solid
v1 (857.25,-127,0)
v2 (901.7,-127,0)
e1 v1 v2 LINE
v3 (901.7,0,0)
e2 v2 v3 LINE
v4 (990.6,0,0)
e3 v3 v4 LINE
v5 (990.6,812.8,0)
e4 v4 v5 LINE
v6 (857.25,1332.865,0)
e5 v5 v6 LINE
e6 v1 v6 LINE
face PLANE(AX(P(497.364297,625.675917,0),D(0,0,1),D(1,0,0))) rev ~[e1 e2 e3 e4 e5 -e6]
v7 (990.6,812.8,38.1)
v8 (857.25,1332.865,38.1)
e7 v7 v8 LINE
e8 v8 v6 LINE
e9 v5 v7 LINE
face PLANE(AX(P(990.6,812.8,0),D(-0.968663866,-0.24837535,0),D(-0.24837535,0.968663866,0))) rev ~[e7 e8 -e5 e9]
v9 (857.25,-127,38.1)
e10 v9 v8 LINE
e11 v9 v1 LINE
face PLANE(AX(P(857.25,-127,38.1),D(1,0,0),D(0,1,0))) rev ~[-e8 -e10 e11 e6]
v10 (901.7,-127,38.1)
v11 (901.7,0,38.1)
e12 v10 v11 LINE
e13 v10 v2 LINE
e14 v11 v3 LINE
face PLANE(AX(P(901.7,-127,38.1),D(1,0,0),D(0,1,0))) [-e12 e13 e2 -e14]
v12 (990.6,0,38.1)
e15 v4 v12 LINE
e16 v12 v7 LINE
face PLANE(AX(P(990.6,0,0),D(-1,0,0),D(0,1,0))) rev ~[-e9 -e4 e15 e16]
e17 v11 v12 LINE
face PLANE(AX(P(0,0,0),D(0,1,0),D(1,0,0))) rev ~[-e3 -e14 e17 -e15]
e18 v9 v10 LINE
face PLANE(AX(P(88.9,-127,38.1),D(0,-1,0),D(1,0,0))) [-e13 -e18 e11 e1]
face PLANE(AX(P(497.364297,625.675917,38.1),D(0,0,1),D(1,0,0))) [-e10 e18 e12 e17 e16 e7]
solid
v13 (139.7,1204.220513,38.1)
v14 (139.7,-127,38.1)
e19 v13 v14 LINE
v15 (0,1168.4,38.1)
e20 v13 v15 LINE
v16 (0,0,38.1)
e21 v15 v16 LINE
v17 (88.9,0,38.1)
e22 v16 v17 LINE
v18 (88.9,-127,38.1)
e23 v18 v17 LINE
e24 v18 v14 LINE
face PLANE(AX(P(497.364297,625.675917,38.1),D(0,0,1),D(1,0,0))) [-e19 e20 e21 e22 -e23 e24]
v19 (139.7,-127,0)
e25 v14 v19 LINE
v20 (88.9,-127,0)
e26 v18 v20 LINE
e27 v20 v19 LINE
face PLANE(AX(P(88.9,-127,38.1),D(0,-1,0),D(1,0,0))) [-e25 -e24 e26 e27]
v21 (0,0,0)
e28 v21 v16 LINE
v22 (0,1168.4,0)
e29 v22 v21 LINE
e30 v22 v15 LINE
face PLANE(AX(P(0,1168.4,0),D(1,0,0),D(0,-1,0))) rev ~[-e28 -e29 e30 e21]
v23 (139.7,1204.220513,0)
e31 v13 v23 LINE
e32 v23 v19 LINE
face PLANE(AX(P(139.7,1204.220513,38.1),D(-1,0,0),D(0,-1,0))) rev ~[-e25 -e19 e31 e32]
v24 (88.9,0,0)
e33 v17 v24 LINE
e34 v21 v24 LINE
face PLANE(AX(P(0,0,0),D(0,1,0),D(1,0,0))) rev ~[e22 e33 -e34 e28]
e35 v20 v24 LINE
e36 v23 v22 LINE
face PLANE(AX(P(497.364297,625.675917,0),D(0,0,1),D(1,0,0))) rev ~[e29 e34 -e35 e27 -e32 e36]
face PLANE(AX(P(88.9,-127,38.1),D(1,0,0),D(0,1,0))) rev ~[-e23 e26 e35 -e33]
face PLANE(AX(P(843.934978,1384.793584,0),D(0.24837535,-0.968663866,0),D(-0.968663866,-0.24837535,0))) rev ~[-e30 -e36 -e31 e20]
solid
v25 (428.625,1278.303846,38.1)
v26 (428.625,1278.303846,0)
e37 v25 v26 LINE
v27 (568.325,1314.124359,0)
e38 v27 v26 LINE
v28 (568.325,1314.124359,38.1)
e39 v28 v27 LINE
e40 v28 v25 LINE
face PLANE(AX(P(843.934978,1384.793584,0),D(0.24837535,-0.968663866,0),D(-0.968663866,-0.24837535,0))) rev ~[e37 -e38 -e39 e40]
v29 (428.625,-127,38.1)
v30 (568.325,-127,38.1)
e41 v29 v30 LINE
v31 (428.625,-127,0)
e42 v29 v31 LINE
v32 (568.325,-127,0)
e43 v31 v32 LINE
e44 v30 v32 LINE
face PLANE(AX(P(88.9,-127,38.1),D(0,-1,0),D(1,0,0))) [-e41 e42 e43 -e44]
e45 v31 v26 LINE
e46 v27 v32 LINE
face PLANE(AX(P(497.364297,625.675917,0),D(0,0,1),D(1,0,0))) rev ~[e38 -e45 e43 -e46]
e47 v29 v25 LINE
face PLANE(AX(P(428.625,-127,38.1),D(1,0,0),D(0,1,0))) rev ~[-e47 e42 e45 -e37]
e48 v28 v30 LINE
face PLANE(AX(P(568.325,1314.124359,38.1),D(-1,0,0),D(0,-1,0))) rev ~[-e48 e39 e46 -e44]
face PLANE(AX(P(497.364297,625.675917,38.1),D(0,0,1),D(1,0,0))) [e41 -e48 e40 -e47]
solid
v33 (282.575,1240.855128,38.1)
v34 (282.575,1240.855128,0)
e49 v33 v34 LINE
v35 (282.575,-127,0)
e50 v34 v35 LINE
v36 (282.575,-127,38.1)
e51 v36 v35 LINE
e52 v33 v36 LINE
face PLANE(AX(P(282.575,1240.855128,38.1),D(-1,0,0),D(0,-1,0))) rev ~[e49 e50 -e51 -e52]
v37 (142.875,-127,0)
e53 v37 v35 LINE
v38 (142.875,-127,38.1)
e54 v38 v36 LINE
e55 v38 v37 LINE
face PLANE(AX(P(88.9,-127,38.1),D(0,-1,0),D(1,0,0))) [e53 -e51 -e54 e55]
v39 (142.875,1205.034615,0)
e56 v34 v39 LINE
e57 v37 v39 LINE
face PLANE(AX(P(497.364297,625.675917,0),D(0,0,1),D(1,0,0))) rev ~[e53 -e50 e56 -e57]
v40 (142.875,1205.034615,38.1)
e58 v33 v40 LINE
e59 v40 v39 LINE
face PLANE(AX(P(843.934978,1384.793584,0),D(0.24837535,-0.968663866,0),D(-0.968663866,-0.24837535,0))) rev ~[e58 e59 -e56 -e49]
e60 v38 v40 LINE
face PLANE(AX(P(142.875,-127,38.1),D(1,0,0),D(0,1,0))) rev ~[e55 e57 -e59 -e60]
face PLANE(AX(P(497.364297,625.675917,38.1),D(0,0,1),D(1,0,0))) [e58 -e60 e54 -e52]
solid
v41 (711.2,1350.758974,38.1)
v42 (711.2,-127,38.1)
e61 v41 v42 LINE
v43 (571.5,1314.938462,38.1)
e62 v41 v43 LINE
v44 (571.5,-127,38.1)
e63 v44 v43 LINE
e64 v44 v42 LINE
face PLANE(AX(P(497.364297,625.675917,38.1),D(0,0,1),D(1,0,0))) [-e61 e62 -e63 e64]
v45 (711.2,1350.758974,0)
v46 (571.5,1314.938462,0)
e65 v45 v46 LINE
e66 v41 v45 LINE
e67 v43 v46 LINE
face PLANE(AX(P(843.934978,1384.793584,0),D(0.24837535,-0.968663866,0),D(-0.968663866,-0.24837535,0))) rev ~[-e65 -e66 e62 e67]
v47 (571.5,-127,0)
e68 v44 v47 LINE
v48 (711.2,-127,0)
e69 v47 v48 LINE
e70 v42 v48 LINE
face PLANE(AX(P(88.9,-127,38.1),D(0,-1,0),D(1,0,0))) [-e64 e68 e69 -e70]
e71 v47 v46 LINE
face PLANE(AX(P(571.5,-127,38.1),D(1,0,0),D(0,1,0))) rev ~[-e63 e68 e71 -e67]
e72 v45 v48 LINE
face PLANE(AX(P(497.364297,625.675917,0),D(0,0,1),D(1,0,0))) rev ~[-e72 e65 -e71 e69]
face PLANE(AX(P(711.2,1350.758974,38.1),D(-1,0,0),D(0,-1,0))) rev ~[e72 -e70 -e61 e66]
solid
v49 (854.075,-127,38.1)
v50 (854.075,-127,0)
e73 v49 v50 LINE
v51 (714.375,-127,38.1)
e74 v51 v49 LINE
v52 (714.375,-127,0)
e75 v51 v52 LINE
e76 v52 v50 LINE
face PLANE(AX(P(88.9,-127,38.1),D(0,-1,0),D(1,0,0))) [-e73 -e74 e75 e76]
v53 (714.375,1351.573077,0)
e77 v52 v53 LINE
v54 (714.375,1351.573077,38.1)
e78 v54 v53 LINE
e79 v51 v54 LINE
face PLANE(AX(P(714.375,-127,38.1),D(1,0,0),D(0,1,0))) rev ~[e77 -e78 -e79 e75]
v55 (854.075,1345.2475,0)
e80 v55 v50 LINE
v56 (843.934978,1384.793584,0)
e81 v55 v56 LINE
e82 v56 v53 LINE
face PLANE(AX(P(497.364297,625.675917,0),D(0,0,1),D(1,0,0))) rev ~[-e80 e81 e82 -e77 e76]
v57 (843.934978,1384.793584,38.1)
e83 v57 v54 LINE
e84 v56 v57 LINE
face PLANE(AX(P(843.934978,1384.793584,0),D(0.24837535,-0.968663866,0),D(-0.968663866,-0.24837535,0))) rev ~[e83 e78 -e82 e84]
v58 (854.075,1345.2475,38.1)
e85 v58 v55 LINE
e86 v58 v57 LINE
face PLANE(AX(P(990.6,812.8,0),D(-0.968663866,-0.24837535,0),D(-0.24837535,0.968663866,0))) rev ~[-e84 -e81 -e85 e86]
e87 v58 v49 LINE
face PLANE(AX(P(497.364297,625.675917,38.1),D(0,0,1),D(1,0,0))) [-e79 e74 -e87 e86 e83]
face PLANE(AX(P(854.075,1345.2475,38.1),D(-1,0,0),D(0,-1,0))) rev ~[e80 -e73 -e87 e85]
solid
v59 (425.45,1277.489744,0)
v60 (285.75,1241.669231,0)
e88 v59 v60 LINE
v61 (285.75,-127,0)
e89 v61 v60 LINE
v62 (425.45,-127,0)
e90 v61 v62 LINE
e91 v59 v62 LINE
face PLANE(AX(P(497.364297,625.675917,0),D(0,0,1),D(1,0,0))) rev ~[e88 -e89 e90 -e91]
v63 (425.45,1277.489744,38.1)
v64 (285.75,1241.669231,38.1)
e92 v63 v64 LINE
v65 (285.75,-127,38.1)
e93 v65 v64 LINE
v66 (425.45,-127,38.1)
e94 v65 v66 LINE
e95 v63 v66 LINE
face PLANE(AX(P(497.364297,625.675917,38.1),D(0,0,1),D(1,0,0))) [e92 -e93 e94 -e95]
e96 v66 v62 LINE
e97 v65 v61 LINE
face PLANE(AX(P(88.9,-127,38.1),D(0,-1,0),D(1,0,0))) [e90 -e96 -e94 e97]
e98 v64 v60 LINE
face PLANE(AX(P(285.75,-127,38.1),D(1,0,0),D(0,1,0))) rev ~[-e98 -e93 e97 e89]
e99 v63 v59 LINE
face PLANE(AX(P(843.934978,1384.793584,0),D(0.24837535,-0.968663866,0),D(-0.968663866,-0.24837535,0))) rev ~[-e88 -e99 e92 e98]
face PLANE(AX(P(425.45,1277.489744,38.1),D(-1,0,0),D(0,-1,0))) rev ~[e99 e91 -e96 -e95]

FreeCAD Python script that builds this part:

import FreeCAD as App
import Part
import Sketcher
Q = App.Units.Quantity


def add_polygon(sketch, points):
    """Adds a closed chain of lines whose ends are joined by coincident constraints."""
    first, n = sketch.GeometryCount, len(points)
    for a, b in zip(points, points[1:] + points[:1]):
        sketch.addGeometry(Part.LineSegment(App.Vector(*a, 0), App.Vector(*b, 0)), False)
    for i in range(n):
        sketch.addConstraint(Sketcher.Constraint("Coincident", first + i, 2, first + (i + 1) % n, 1))

doc = App.newDocument("Part")
body = doc.addObject("PartDesign::Body", "Body")
body.AllowCompound = True

# Sketch on XY plane
sketch1 = body.newObject("Sketcher::SketchObject", "Sketch")
sketch1.AttachmentSupport = (doc.getObject("XY_Plane"), [""])
sketch1.MapMode = "FlatFace"
add_polygon(sketch1, [(0, 1168), (0, 0), (991, 0), (991, 813), (844, 1385)])  # lines 0-4
sketch1.addConstraint(Sketcher.Constraint("Vertical", 0))
sketch1.addConstraint(Sketcher.Constraint("Horizontal", 1))
sketch1.addConstraint(Sketcher.Constraint("Vertical", 2))
sketch1.addConstraint(Sketcher.Constraint("Coincident", 0, 2, -1, 1))
sketch1.addConstraint(Sketcher.Constraint("Perpendicular", 3, 4))
sketch1.addConstraint(Sketcher.Constraint("DistanceX", 1, 1, 1, 2, Q("39 in")))
sketch1.addConstraint(Sketcher.Constraint("DistanceY", 0, 2, 0, 1, Q("46 in")))
sketch1.addConstraint(Sketcher.Constraint("DistanceY", 2, 1, 2, 2, Q("32 in")))
sketch1.addConstraint(Sketcher.Constraint("Distance", 4, 871.236151))
pad1 = body.newObject("PartDesign::Pad", "Pad")
pad1.Profile = sketch1
pad1.Length = Q("1.5 in")

# Sketch on XY plane
sketch2 = body.newObject("Sketcher::SketchObject", "Sketch001")
sketch2.AttachmentSupport = (doc.getObject("XY_Plane"), [""])
sketch2.MapMode = "FlatFace"
sketch2.AttachmentOffset = App.Placement(App.Vector(0, 0, 1.5 * 25.4), App.Rotation())
add_polygon(sketch2, [(89, 0), (89, -127), (902, -127), (902, 0)])  # lines 0-3
sketch2.addConstraint(Sketcher.Constraint("Vertical", 0))
sketch2.addConstraint(Sketcher.Constraint("Horizontal", 1))
sketch2.addConstraint(Sketcher.Constraint("Vertical", 2))
sketch2.addConstraint(Sketcher.Constraint("Horizontal", 3))
sketch2.addConstraint(Sketcher.Constraint("PointOnObject", 2, 2, -1))
sketch2.addConstraint(Sketcher.Constraint("DistanceX", 1, 1, 1, 2, Q("32 in")))
sketch2.addConstraint(Sketcher.Constraint("DistanceY", 0, 2, 0, 1, Q("5 in")))
sketch2.addConstraint(Sketcher.Constraint("DistanceX", -1, 1, 0, 2, Q("3.5 in")))
pad2 = body.newObject("PartDesign::Pad", "Pad001")
pad2.Profile = sketch2
pad2.Length = Q("1.5 in")
pad2.Reversed = True

# Sketch on XY plane
sketch3 = body.newObject("Sketcher::SketchObject", "Sketch002")
sketch3.AttachmentSupport = (doc.getObject("XY_Plane"), [""])
sketch3.MapMode = "FlatFace"
sketch3.AttachmentOffset = App.Placement(App.Vector(0, 0, 1.5 * 25.4), App.Rotation())
add_polygon(sketch3, [(139.7, 1204.2), (139.7, -127), (142.9, -127), (142.9, 1205)])  # lines 0-3
add_polygon(sketch3, [(282.6, 1240.9), (282.6, -127), (285.8, -127), (285.8, 1241.7)])  # lines 4-7
add_polygon(sketch3, [(425.4, 1277.5), (425.4, -127), (428.6, -127), (428.6, 1278.3)])  # lines 8-11
add_polygon(sketch3, [(568.3, 1314.1), (568.3, -127), (571.5, -127), (571.5, 1314.9)])  # lines 12-15
add_polygon(sketch3, [(711.2, 1350.8), (711.2, -127), (714.4, -127), (714.4, 1351.6)])  # lines 16-19
add_polygon(sketch3, [(854.1, 1345.2), (854.1, -127), (857.2, -127), (857.2, 1332.9)])  # lines 20-23
sketch3.addConstraint(Sketcher.Constraint("Vertical", 0))
sketch3.addConstraint(Sketcher.Constraint("Horizontal", 1))
sketch3.addConstraint(Sketcher.Constraint("Vertical", 2))
sketch3.addConstraint(Sketcher.Constraint("Vertical", 4))
sketch3.addConstraint(Sketcher.Constraint("Horizontal", 5))
sketch3.addConstraint(Sketcher.Constraint("Vertical", 6))
sketch3.addConstraint(Sketcher.Constraint("Vertical", 8))
sketch3.addConstraint(Sketcher.Constraint("Horizontal", 9))
sketch3.addConstraint(Sketcher.Constraint("Vertical", 10))
sketch3.addConstraint(Sketcher.Constraint("Vertical", 12))
sketch3.addConstraint(Sketcher.Constraint("Horizontal", 13))
sketch3.addConstraint(Sketcher.Constraint("Vertical", 14))
sketch3.addConstraint(Sketcher.Constraint("Vertical", 16))
sketch3.addConstraint(Sketcher.Constraint("Horizontal", 17))
sketch3.addConstraint(Sketcher.Constraint("Vertical", 18))
sketch3.addConstraint(Sketcher.Constraint("Vertical", 20))
sketch3.addConstraint(Sketcher.Constraint("Horizontal", 21))
sketch3.addConstraint(Sketcher.Constraint("Vertical", 22))
sketch3.addConstraint(Sketcher.Constraint("Parallel", 3, 7))
sketch3.addConstraint(Sketcher.Constraint("Parallel", 7, 11))
sketch3.addConstraint(Sketcher.Constraint("Parallel", 11, 15))
sketch3.addConstraint(Sketcher.Constraint("Parallel", 15, 19))
sketch3.addConstraint(Sketcher.Constraint("Perpendicular", 19, 23))
sketch3.addConstraint(Sketcher.Constraint("Horizontal", 1, 2, 4, 2))
sketch3.addConstraint(Sketcher.Constraint("Horizontal", 5, 2, 8, 2))
sketch3.addConstraint(Sketcher.Constraint("Horizontal", 9, 2, 12, 2))
sketch3.addConstraint(Sketcher.Constraint("Horizontal", 13, 2, 16, 2))
sketch3.addConstraint(Sketcher.Constraint("Horizontal", 17, 2, 20, 2))
sketch3.addConstraint(Sketcher.Constraint("Equal", 1, 5))
sketch3.addConstraint(Sketcher.Constraint("Equal", 5, 9))
sketch3.addConstraint(Sketcher.Constraint("Equal", 9, 13))
sketch3.addConstraint(Sketcher.Constraint("Equal", 13, 17))
sketch3.addConstraint(Sketcher.Constraint("Equal", 17, 21))
sketch3.addConstraint(Sketcher.Constraint("DistanceY", 0, 2, -1, 1, Q("5 in")))
sketch3.addConstraint(Sketcher.Constraint("DistanceX", -1, 1, 16, 2, Q("28 in")))
sketch3.addConstraint(Sketcher.Constraint("DistanceX", -1, 1, 0, 2, Q("5.5 in")))
sketch3.addConstraint(Sketcher.Constraint("DistanceX", -1, 1, 13, 2, Q("22.5 in")))
sketch3.addConstraint(Sketcher.Constraint("DistanceX", 1, 2, 4, 2, Q("5.5 in")))
sketch3.addConstraint(Sketcher.Constraint("DistanceX", 5, 2, 8, 2, Q("5.5 in")))
sketch3.addConstraint(Sketcher.Constraint("DistanceX", 9, 2, 12, 2, Q("5.5 in")))
sketch3.addConstraint(Sketcher.Constraint("DistanceX", 17, 2, 20, 2, Q("5.5 in")))
sketch3.addConstraint(Sketcher.Constraint("DistanceY", 22, 1, 22, 2, Q("57.475 in")))
sketch3.addConstraint(Sketcher.Constraint("DistanceY", 20, 2, 20, 1, Q("57.9625 in")))
sketch3.addConstraint(Sketcher.Constraint("DistanceY", 4, 2, 4, 1, 1367.855128))
sketch3.addConstraint(Sketcher.Constraint("DistanceY", 12, 2, 12, 1, 1441.124359))
sketch3.addConstraint(Sketcher.Constraint("DistanceY", 0, 2, 0, 1, 1331.220513))
sketch3.addConstraint(Sketcher.Constraint("DistanceY", 8, 2, 8, 1, 1404.489744))
sketch3.addConstraint(Sketcher.Constraint("DistanceY", 16, 2, 16, 1, 1477.758974))
pocket1 = body.newObject("PartDesign::Pocket", "Pocket")
pocket1.Profile = sketch3
pocket1.Type = "ThroughAll"

doc.recompute()
